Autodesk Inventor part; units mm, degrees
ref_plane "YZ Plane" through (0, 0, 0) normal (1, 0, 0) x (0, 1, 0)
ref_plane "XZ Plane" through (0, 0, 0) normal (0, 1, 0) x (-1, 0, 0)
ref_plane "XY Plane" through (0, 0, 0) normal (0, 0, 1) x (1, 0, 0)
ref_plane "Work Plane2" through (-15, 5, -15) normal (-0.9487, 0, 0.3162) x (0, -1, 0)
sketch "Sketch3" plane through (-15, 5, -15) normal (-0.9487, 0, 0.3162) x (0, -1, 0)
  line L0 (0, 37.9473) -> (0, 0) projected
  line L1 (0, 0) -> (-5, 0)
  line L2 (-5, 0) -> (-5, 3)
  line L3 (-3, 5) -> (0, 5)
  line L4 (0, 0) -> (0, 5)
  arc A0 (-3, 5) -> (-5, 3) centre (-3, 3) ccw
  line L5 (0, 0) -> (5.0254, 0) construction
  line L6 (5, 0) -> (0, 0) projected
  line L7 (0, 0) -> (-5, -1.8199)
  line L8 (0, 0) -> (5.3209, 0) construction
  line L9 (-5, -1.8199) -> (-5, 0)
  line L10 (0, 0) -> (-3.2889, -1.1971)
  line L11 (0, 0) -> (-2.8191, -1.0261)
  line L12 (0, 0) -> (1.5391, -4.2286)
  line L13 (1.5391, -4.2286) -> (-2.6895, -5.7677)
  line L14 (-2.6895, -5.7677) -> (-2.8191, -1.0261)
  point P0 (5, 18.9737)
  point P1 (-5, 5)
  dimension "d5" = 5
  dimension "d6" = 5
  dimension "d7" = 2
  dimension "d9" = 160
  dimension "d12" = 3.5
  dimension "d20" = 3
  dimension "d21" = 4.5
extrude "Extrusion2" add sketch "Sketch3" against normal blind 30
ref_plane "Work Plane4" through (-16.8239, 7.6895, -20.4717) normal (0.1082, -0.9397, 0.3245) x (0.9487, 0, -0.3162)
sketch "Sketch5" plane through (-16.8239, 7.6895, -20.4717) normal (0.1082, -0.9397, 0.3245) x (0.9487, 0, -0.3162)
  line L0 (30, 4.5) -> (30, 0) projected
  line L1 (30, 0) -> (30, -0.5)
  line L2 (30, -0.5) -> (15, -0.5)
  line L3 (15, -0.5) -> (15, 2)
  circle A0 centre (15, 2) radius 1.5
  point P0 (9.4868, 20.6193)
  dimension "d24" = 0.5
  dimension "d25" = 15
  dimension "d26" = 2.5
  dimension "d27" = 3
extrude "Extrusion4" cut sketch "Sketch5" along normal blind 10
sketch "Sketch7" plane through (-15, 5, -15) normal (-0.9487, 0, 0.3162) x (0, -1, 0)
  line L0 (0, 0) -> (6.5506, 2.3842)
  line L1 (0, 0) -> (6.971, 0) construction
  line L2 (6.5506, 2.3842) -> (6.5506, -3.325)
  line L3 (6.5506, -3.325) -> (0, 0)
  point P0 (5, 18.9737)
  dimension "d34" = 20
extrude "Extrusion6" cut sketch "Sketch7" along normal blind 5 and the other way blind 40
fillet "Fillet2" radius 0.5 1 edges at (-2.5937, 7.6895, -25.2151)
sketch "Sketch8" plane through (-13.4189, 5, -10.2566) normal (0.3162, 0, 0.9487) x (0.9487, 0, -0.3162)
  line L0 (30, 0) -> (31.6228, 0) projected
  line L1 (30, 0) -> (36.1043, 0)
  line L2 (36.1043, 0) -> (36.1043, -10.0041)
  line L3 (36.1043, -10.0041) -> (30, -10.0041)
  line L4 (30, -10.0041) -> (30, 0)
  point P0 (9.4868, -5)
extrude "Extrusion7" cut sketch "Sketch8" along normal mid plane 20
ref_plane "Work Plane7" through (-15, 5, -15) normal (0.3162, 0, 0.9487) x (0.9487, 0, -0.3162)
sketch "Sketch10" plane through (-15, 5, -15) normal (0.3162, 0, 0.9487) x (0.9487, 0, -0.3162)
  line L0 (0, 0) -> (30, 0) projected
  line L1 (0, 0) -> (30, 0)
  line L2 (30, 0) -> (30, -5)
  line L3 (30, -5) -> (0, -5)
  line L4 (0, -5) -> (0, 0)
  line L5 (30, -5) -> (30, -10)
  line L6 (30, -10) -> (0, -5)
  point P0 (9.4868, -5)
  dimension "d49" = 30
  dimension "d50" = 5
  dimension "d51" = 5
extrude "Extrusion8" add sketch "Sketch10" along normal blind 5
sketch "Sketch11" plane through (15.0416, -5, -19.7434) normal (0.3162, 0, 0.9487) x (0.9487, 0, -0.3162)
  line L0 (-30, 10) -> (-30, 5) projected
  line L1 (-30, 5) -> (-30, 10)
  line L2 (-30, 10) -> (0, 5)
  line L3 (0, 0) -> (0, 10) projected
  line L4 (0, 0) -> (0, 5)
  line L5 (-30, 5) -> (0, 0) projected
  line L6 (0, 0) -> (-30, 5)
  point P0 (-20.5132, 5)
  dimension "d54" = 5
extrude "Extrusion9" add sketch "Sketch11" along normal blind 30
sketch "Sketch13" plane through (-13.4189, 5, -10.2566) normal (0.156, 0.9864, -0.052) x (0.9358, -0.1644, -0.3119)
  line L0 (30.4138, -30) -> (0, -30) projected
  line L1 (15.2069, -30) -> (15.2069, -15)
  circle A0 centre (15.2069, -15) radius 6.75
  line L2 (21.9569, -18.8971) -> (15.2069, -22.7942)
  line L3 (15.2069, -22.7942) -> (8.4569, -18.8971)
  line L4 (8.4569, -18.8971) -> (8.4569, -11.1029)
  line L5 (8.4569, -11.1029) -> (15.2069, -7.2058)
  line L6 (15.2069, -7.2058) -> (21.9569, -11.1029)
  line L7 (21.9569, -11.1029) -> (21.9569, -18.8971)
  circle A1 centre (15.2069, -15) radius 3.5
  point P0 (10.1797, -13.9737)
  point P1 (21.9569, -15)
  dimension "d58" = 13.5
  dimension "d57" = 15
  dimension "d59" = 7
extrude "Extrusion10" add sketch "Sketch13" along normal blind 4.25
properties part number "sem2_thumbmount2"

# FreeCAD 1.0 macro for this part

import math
import FreeCAD as App
import Part
import Sketcher

V = App.Vector
Q = App.Units.Quantity


def edges_at(feature, points):
    """Names of the edges that pass closest to the given points."""
    edges = feature.Shape.Edges
    near = lambda p: min(range(len(edges)), key=lambda i: edges[i].distToShape(Part.Vertex(*p))[0])
    return sorted({f"Edge{near(p) + 1}" for p in points})

doc = App.newDocument("Part")
body = doc.addObject("PartDesign::Body", "Body")

sketch1 = body.newObject("Sketcher::SketchObject", "Sketch")
sketch1.Placement = App.Placement(V(-15, 5, -15), App.Rotation(V(0, -1, 0), V(0.316197766, 0, 0.948693298), V(-0.948693298, 0, 0.316197766), "ZXY"))
sketch1.addGeometry(Part.LineSegment(V(0, 0, 0), V(0, 5, 0)), False)
sketch1.addGeometry(Part.LineSegment(V(0, 5, 0), V(-3, 5, 0)), False)
sketch1.addGeometry(Part.ArcOfCircle(Part.Circle(V(-3, 3, 0), V(0, 0, 1), 2), math.radians(90), math.radians(180)), False)
sketch1.addGeometry(Part.LineSegment(V(-5, 3, 0), V(-5, -1.8199, 0)), False)
sketch1.addGeometry(Part.LineSegment(V(-5, -1.8199, 0), V(-2.8191, -1.0261, 0)), False)
sketch1.addGeometry(Part.LineSegment(V(-2.8191, -1.0261, 0), V(-2.6895, -5.7677, 0)), False)
sketch1.addGeometry(Part.LineSegment(V(-2.6895, -5.7677, 0), V(1.5391, -4.2286, 0)), False)
sketch1.addGeometry(Part.LineSegment(V(1.5391, -4.2286, 0), V(0, 0, 0)), False)
sketch1.addConstraint(Sketcher.Constraint("Coincident", 0, 2, 1, 1))
sketch1.addConstraint(Sketcher.Constraint("Tangent", 1, 2, 2, 1))
sketch1.addConstraint(Sketcher.Constraint("Tangent", 2, 2, 3, 1))
sketch1.addConstraint(Sketcher.Constraint("Coincident", 3, 2, 4, 1))
sketch1.addConstraint(Sketcher.Constraint("Coincident", 4, 2, 5, 1))
sketch1.addConstraint(Sketcher.Constraint("Coincident", 5, 2, 6, 1))
sketch1.addConstraint(Sketcher.Constraint("Coincident", 6, 2, 7, 1))
sketch1.addConstraint(Sketcher.Constraint("Coincident", 7, 2, 0, 1))
sketch1.addConstraint(Sketcher.Constraint("Vertical", 0))
sketch1.addConstraint(Sketcher.Constraint("Horizontal", 1))
sketch1.addConstraint(Sketcher.Constraint("Vertical", 3))
sketch1.addConstraint(Sketcher.Constraint("Coincident", 7, 2, -1, 1))
sketch1.addConstraint(Sketcher.Constraint("Parallel", 4, 6))
sketch1.addConstraint(Sketcher.Constraint("Perpendicular", 6, 7))
sketch1.addConstraint(Sketcher.Constraint("Equal", 6, 7))
sketch1.addConstraint(Sketcher.Constraint("Radius", 2, 2.0))
sketch1.addConstraint(Sketcher.Constraint("DistanceX", 1, 2, 1, 1, 3.0))
sketch1.addConstraint(Sketcher.Constraint("DistanceY", 0, 1, 0, 2, 5.0))
sketch1.addConstraint(Sketcher.Constraint("Distance", 6, 4.5))
sketch1.addConstraint(Sketcher.Constraint("Angle", 4, Q("20.0004 deg")))
sketch1.addConstraint(Sketcher.Constraint("DistanceY", 3, 2, 3, 1, 4.82))
sketch1.addConstraint(Sketcher.Constraint("DistanceX", 4, 2, -1, 1, 2.819))
pad1 = body.newObject("PartDesign::Pad", "Pad")
pad1.Profile = sketch1
pad1.Length = 30
pad1.Reversed = True

sketch2 = body.newObject("Sketcher::SketchObject", "Sketch001")
sketch2.Placement = App.Placement(V(-16.8239, 7.6895, -20.4717), App.Rotation(V(0.948688707, 0.000039879, -0.316211537), V(0.297124566, 0.34205612, 0.891467668), V(0.108197642, -0.939679525, 0.324492929), "ZXY"))
sketch2.addGeometry(Part.Circle(V(15, 2, 0), V(0, 0, 1), 1.5), False)
sketch2.addConstraint(Sketcher.Constraint("Diameter", 0, 3.0))
sketch2.addConstraint(Sketcher.Constraint("DistanceX", -1, 1, 0, 3, 15.0))
sketch2.addConstraint(Sketcher.Constraint("DistanceY", -1, 1, 0, 3, 2.0))
pocket1 = body.newObject("PartDesign::Pocket", "Pocket")
pocket1.Profile = sketch2
pocket1.Length = 10
pocket1.Reversed = True

sketch3 = body.newObject("Sketcher::SketchObject", "Sketch002")
sketch3.Placement = App.Placement(V(-15, 5, -15), App.Rotation(V(0, -1, 0), V(0.316197766, 0, 0.948693298), V(-0.948693298, 0, 0.316197766), "ZXY"))
sketch3.addGeometry(Part.LineSegment(V(6.5506, 2.3842, 0), V(0, 0, 0)), False)
sketch3.addGeometry(Part.LineSegment(V(0, 0, 0), V(6.5506, -3.325, 0)), False)
sketch3.addGeometry(Part.LineSegment(V(6.5506, -3.325, 0), V(6.5506, 2.3842, 0)), False)
sketch3.addConstraint(Sketcher.Constraint("Coincident", 0, 2, 1, 1))
sketch3.addConstraint(Sketcher.Constraint("Coincident", 1, 2, 2, 1))
sketch3.addConstraint(Sketcher.Constraint("Coincident", 2, 2, 0, 1))
sketch3.addConstraint(Sketcher.Constraint("Vertical", 2))
sketch3.addConstraint(Sketcher.Constraint("Coincident", 0, 2, -1, 1))
sketch3.addConstraint(Sketcher.Constraint("Angle", 0, Q("-160.0002 deg")))
sketch3.addConstraint(Sketcher.Constraint("Distance", 0, 6.971))
sketch3.addConstraint(Sketcher.Constraint("DistanceY", 2, 1, 2, 2, 5.7092))
pocket2 = body.newObject("PartDesign::Pocket", "Pocket001")
pocket2.Profile = sketch3
pocket2.Type = "ThroughAll"
pocket2.Midplane = True
doc.recompute()

fillet = body.newObject("PartDesign::Fillet", "Fillet")
fillet.Base = (pocket2, edges_at(pocket2, [(-2.594, 7.689, -25.215)]))
fillet.Radius = 0.5

sketch4 = body.newObject("Sketcher::SketchObject", "Sketch003")
sketch4.Placement = App.Placement(V(-13.4189, 5, -10.2566), App.Rotation(V(0.948693298, 0, -0.316197766), V(0, 1.000000001, 0), V(0.316197766, 0, 0.948693298), "ZXY"))
sketch4.addGeometry(Part.LineSegment(V(36.1043, 0, 0), V(30, 0, 0)), False)
sketch4.addGeometry(Part.LineSegment(V(30, 0, 0), V(30, -10.0041, 0)), False)
sketch4.addGeometry(Part.LineSegment(V(30, -10.0041, 0), V(36.1043, -10.0041, 0)), False)
sketch4.addGeometry(Part.LineSegment(V(36.1043, -10.0041, 0), V(36.1043, 0, 0)), False)
sketch4.addConstraint(Sketcher.Constraint("Coincident", 0, 2, 1, 1))
sketch4.addConstraint(Sketcher.Constraint("Coincident", 1, 2, 2, 1))
sketch4.addConstraint(Sketcher.Constraint("Coincident", 2, 2, 3, 1))
sketch4.addConstraint(Sketcher.Constraint("Coincident", 3, 2, 0, 1))
sketch4.addConstraint(Sketcher.Constraint("Horizontal", 0))
sketch4.addConstraint(Sketcher.Constraint("Vertical", 1))
sketch4.addConstraint(Sketcher.Constraint("Horizontal", 2))
sketch4.addConstraint(Sketcher.Constraint("Vertical", 3))
sketch4.addConstraint(Sketcher.Constraint("PointOnObject", 0, 2, -1))
sketch4.addConstraint(Sketcher.Constraint("DistanceX", -1, 1, 0, 2, 30.0))
sketch4.addConstraint(Sketcher.Constraint("DistanceY", 1, 2, 1, 1, 10.004))
sketch4.addConstraint(Sketcher.Constraint("DistanceX", 0, 2, 0, 1, 6.1043))
pocket3 = body.newObject("PartDesign::Pocket", "Pocket002")
pocket3.Profile = sketch4
pocket3.Length = 20
pocket3.Midplane = True

sketch5 = body.newObject("Sketcher::SketchObject", "Sketch004")
sketch5.Placement = App.Placement(V(-15, 5, -15), App.Rotation(V(0.948693298, 0, -0.316197766), V(0, 1.000000001, 0), V(0.316197766, 0, 0.948693298), "ZXY"))
sketch5.addGeometry(Part.LineSegment(V(30, 0, 0), V(0, 0, 0)), False)
sketch5.addGeometry(Part.LineSegment(V(0, 0, 0), V(0, -5, 0)), False)
sketch5.addGeometry(Part.LineSegment(V(0, -5, 0), V(30, -10, 0)), False)
sketch5.addGeometry(Part.LineSegment(V(30, -10, 0), V(30, 0, 0)), False)
sketch5.addConstraint(Sketcher.Constraint("Coincident", 0, 2, 1, 1))
sketch5.addConstraint(Sketcher.Constraint("Coincident", 1, 2, 2, 1))
sketch5.addConstraint(Sketcher.Constraint("Coincident", 2, 2, 3, 1))
sketch5.addConstraint(Sketcher.Constraint("Coincident", 3, 2, 0, 1))
sketch5.addConstraint(Sketcher.Constraint("Horizontal", 0))
sketch5.addConstraint(Sketcher.Constraint("Vertical", 1))
sketch5.addConstraint(Sketcher.Constraint("Vertical", 3))
sketch5.addConstraint(Sketcher.Constraint("Coincident", 0, 2, -1, 1))
sketch5.addConstraint(Sketcher.Constraint("DistanceX", 0, 2, 0, 1, 30.0))
sketch5.addConstraint(Sketcher.Constraint("DistanceY", 1, 2, 1, 1, 5.0))
sketch5.addConstraint(Sketcher.Constraint("DistanceY", 2, 2, 1, 2, 5.0))
pad2 = body.newObject("PartDesign::Pad", "Pad001")
pad2.Profile = sketch5
pad2.Length = 5

sketch6 = body.newObject("Sketcher::SketchObject", "Sketch005")
sketch6.Placement = App.Placement(V(15.0416, -5, -19.7434), App.Rotation(V(0.948693298, 0, -0.316197766), V(0, 1.000000001, 0), V(0.316197766, 0, 0.948693298), "ZXY"))
sketch6.addGeometry(Part.LineSegment(V(0, 5, 0), V(-30, 10, 0)), False)
sketch6.addGeometry(Part.LineSegment(V(-30, 10, 0), V(-30, 5, 0)), False)
sketch6.addGeometry(Part.LineSegment(V(-30, 5, 0), V(0, 0, 0)), False)
sketch6.addGeometry(Part.LineSegment(V(0, 0, 0), V(0, 5, 0)), False)
sketch6.addConstraint(Sketcher.Constraint("Coincident", 0, 2, 1, 1))
sketch6.addConstraint(Sketcher.Constraint("Coincident", 1, 2, 2, 1))
sketch6.addConstraint(Sketcher.Constraint("Coincident", 2, 2, 3, 1))
sketch6.addConstraint(Sketcher.Constraint("Coincident", 3, 2, 0, 1))
sketch6.addConstraint(Sketcher.Constraint("Vertical", 1))
sketch6.addConstraint(Sketcher.Constraint("Vertical", 3))
sketch6.addConstraint(Sketcher.Constraint("Coincident", 2, 2, -1, 1))
sketch6.addConstraint(Sketcher.Constraint("Parallel", 0, 2))
sketch6.addConstraint(Sketcher.Constraint("Horizontal", 1, 2, 3, 2))
sketch6.addConstraint(Sketcher.Constraint("DistanceY", 1, 2, 1, 1, 5.0))
sketch6.addConstraint(Sketcher.Constraint("DistanceX", 0, 2, -1, 1, 30.0))
pad3 = body.newObject("PartDesign::Pad", "Pad002")
pad3.Profile = sketch6
pad3.Length = 30

sketch7 = body.newObject("Sketcher::SketchObject", "Sketch006")
sketch7.Placement = App.Placement(V(-13.4189, 5, -10.2566), App.Rotation(V(0.935779526, -0.164436386, -0.311893176), V(-0.316198175, -0.0000052, -0.948693161), V(0.155998053, 0.98638769, -0.051999351), "ZXY"))
sketch7.addGeometry(Part.LineSegment(V(15.2069, -22.7942, 0), V(21.9569, -18.8971, 0)), False)
sketch7.addGeometry(Part.LineSegment(V(21.9569, -18.8971, 0), V(21.9569, -11.1029, 0)), False)
sketch7.addGeometry(Part.LineSegment(V(21.9569, -11.1029, 0), V(15.2069, -7.2058, 0)), False)
sketch7.addGeometry(Part.LineSegment(V(15.2069, -7.2058, 0), V(8.4569, -11.1029, 0)), False)
sketch7.addGeometry(Part.LineSegment(V(8.4569, -11.1029, 0), V(8.4569, -18.8971, 0)), False)
sketch7.addGeometry(Part.LineSegment(V(8.4569, -18.8971, 0), V(15.2069, -22.7942, 0)), False)
sketch7.addGeometry(Part.Circle(V(15.2069, -15, 0), V(0, 0, 1), 3.5), False)
sketch7.addConstraint(Sketcher.Constraint("Coincident", 0, 2, 1, 1))
sketch7.addConstraint(Sketcher.Constraint("Coincident", 1, 2, 2, 1))
sketch7.addConstraint(Sketcher.Constraint("Coincident", 2, 2, 3, 1))
sketch7.addConstraint(Sketcher.Constraint("Coincident", 3, 2, 4, 1))
sketch7.addConstraint(Sketcher.Constraint("Coincident", 4, 2, 5, 1))
sketch7.addConstraint(Sketcher.Constraint("Coincident", 5, 2, 0, 1))
sketch7.addConstraint(Sketcher.Constraint("Vertical", 1))
sketch7.addConstraint(Sketcher.Constraint("Vertical", 4))
sketch7.addConstraint(Sketcher.Constraint("Parallel", 0, 3))
sketch7.addConstraint(Sketcher.Constraint("Parallel", 2, 5))
sketch7.addConstraint(Sketcher.Constraint("Horizontal", 1, 2, 3, 2))
sketch7.addConstraint(Sketcher.Constraint("Horizontal", 0, 2, 4, 2))
sketch7.addConstraint(Sketcher.Constraint("Vertical", 6, 3, 2, 2))
sketch7.addConstraint(Sketcher.Constraint("Vertical", 2, 2, 5, 2))
sketch7.addConstraint(Sketcher.Constraint("Diameter", 6, 7.0))
sketch7.addConstraint(Sketcher.Constraint("DistanceY", 6, 3, -1, 1, 15.0))
sketch7.addConstraint(Sketcher.Constraint("DistanceX", 3, 2, 1, 2, 13.5))
sketch7.addConstraint(Sketcher.Constraint("Angle", 0, Q("30 deg")))
sketch7.addConstraint(Sketcher.Constraint("DistanceY", 1, 1, 1, 2, 7.7942))
sketch7.addConstraint(Sketcher.Constraint("DistanceX", -1, 1, 6, 3, 15.207))
sketch7.addConstraint(Sketcher.Constraint("DistanceY", 0, 2, -1, 1, 18.897))
pad4 = body.newObject("PartDesign::Pad", "Pad003")
pad4.Profile = sketch7
pad4.Length = 4.25

doc.recompute()
